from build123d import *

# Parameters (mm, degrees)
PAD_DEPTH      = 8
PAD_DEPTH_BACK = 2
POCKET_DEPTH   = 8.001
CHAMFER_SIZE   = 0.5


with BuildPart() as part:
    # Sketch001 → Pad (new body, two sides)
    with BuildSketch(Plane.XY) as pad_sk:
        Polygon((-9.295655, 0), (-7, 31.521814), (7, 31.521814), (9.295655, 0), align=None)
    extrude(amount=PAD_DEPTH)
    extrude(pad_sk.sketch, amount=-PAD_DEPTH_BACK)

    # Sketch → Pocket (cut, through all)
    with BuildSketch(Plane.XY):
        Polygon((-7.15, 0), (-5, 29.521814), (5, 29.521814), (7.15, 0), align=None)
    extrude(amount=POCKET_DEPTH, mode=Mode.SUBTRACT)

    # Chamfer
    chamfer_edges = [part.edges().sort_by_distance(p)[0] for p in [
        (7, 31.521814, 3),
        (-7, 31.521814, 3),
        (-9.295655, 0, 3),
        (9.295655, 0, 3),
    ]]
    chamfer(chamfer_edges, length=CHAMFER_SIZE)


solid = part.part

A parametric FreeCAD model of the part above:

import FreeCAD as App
import Part
import Sketcher

V = App.Vector
Q = App.Units.Quantity


def edges_at(feature, points):
    """Names of the edges that pass closest to the given points."""
    edges = feature.Shape.Edges
    near = lambda p: min(range(len(edges)), key=lambda i: edges[i].distToShape(Part.Vertex(*p))[0])
    return sorted({f"Edge{near(p) + 1}" for p in points})


def add_polygon(sketch, points):
    """Adds a closed chain of lines whose ends are joined by coincident constraints."""
    first, n = sketch.GeometryCount, len(points)
    for a, b in zip(points, points[1:] + points[:1]):
        sketch.addGeometry(Part.LineSegment(App.Vector(*a, 0), App.Vector(*b, 0)), False)
    for i in range(n):
        sketch.addConstraint(Sketcher.Constraint("Coincident", first + i, 2, first + (i + 1) % n, 1))

doc = App.newDocument("Part")
params = doc.addObject("Spreadsheet::Sheet", "Params")
for row, (alias, value) in enumerate([
    ("sketch1_width", "14 mm"),
    ("pad1_length", "8 mm"),
    ("pad1_length2", "2 mm"),
    ("sketch2_width", "10 mm"),
    ("sketch2_width2", "14.3 mm"),
    ("sketch2_length", "29.6 mm"),
    ("chamfer_size", "0.5 mm"),
], start=1):
    params.set(f"A{row}", alias)
    params.set(f"B{row}", "=" + value)
    params.setAlias(f"B{row}", alias)

body = doc.addObject("PartDesign::Body", "Body")

# Sketch on XY plane
sketch1 = doc.addObject("Sketcher::SketchObject", "Sketch")
body.addObject(sketch1)
sketch1.AttachmentSupport = (doc.XY_Plane, [""])
sketch1.MapMode = "FlatFace"
add_polygon(sketch1, [(-7, 32), (-9, 0), (9, 0), (7, 32)])  # lines 0-3
sketch1.addConstraint(Sketcher.Constraint("Horizontal", 1))
sketch1.addConstraint(Sketcher.Constraint("Horizontal", 3))
sketch1.addConstraint(Sketcher.Constraint("Symmetric", 0, 2, 1, 2, -1, 1))
sketch1.addConstraint(Sketcher.Constraint("Equal", 0, 2))
sketch1.addConstraint(Sketcher.Constraint("DistanceX", 3, 2, 3, 1, Q("14 mm")))
sketch1.addConstraint(Sketcher.Constraint("DistanceX", 1, 1, 1, 2, Q("18.59131 mm")))
sketch1.addConstraint(Sketcher.Constraint("Distance", 0, Q("31.605297 mm")))
sketch1.setExpression("Constraints[8]", "Params.sketch1_width")
pad1 = doc.addObject("PartDesign::Pad", "Pad")
body.addObject(pad1)
pad1.Profile = sketch1
pad1.Type = "TwoLengths"
pad1.setExpression("Length", "Params.pad1_length")
pad1.setExpression("Length2", "Params.pad1_length2")

# Sketch on XY plane
sketch2 = doc.addObject("Sketcher::SketchObject", "Sketch001")
body.addObject(sketch2)
sketch2.AttachmentSupport = (doc.XY_Plane, [""])
sketch2.MapMode = "FlatFace"
add_polygon(sketch2, [(-5, 30), (-7, 0), (7, 0), (5, 30)])  # lines 0-3
sketch2.addConstraint(Sketcher.Constraint("Horizontal", 1))
sketch2.addConstraint(Sketcher.Constraint("Horizontal", 3))
sketch2.addConstraint(Sketcher.Constraint("Symmetric", 0, 2, 1, 2, -1, 1))
sketch2.addConstraint(Sketcher.Constraint("Equal", 0, 2))
sketch2.addConstraint(Sketcher.Constraint("DistanceX", 3, 2, 3, 1, Q("10 mm")))
sketch2.addConstraint(Sketcher.Constraint("DistanceX", 1, 1, 1, 2, Q("14.3 mm")))
sketch2.addConstraint(Sketcher.Constraint("Distance", 0, Q("29.6 mm")))
sketch2.setExpression("Constraints[8]", "Params.sketch2_width")
sketch2.setExpression("Constraints[9]", "Params.sketch2_width2")
sketch2.setExpression("Constraints[10]", "Params.sketch2_length")
pocket1 = doc.addObject("PartDesign::Pocket", "Pocket")
body.addObject(pocket1)
pocket1.Profile = sketch2
pocket1.Type = "ThroughAll"
pocket1.Reversed = True
doc.recompute()

chamfer = doc.addObject("PartDesign::Chamfer", "Chamfer")
body.addObject(chamfer)
chamfer.Base = (pocket1, edges_at(pocket1, [
    (7, 31.522, 3),
    (-7, 31.522, 3),
    (-9.296, 0, 3),
    (9.296, 0, 3),
]))
chamfer.setExpression("Size", "Params.chamfer_size")

doc.recompute()
